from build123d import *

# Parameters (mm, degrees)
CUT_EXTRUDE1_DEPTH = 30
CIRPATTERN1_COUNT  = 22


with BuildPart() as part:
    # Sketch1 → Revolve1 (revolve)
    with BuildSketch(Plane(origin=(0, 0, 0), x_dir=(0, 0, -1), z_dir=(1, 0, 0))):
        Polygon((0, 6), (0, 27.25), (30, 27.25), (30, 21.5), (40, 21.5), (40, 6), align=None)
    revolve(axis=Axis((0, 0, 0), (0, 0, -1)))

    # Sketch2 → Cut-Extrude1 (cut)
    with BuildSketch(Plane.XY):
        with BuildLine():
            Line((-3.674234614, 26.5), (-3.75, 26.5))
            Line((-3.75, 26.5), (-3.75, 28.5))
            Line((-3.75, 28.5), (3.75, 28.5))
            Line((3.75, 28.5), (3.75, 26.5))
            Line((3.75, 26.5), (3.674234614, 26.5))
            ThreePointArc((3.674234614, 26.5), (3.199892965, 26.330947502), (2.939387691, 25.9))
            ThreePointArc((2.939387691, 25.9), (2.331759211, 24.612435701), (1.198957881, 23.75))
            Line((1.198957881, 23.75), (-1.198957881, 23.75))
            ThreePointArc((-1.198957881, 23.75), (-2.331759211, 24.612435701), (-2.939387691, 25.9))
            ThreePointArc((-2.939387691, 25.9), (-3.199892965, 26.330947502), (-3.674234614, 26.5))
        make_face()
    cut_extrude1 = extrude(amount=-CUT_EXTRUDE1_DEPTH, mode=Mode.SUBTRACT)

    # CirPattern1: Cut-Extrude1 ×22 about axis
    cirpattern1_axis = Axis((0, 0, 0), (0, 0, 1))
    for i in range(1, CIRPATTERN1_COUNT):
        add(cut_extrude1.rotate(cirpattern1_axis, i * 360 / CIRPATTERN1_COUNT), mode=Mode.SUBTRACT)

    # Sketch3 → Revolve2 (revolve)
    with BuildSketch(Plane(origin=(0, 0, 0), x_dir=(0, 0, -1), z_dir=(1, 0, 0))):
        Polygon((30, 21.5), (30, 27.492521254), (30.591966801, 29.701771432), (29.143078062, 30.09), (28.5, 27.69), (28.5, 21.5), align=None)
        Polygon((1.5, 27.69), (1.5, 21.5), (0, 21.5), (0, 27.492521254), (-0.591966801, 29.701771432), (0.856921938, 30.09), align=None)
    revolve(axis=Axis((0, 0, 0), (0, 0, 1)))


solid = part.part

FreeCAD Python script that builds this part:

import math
import FreeCAD as App
import Part
import Sketcher

V = App.Vector
Q = App.Units.Quantity

doc = App.newDocument("Part")
body = doc.addObject("PartDesign::Body", "Body")

# Sketch on YZ plane
sketch1 = doc.addObject("Sketcher::SketchObject", "Sketch")
body.addObject(sketch1)
sketch1.AttachmentSupport = (doc.YZ_Plane, [""])
sketch1.MapMode = "FlatFace"
sketch1.addGeometry([
    Part.LineSegment(V(27, 0, 0), V(6, 0, 0)),  # 0
    Part.LineSegment(V(6, 0, 0), V(6, -40, 0)),  # 1
    Part.LineSegment(V(6, -40, 0), V(22, -40, 0)),  # 2
    Part.LineSegment(V(22, -40, 0), V(22, -30, 0)),  # 3
    Part.LineSegment(V(22, -30, 0), V(27, -30, 0)),  # 4
    Part.LineSegment(V(27, -30, 0), V(27, 0, 0)),  # 5
], False)
sketch1.addConstraint([
    Sketcher.Constraint("Coincident", 0, 2, 1, 1),
    Sketcher.Constraint("Coincident", 1, 2, 2, 1),
    Sketcher.Constraint("Coincident", 2, 2, 3, 1),
    Sketcher.Constraint("Coincident", 3, 2, 4, 1),
    Sketcher.Constraint("Coincident", 4, 2, 5, 1),
    Sketcher.Constraint("Coincident", 5, 2, 0, 1),
    Sketcher.Constraint("Horizontal", 0),
    Sketcher.Constraint("Vertical", 1),
    Sketcher.Constraint("Horizontal", 2),
    Sketcher.Constraint("Vertical", 3),
    Sketcher.Constraint("Horizontal", 4),
    Sketcher.Constraint("Vertical", 5),
    Sketcher.Constraint("PointOnObject", 0, 2, -1),
    Sketcher.Constraint("DistanceY", 1, 2, 1, 1, 40.0),
    Sketcher.Constraint("DistanceY", 3, 1, 3, 2, 10.0),
    Sketcher.Constraint("DistanceX", 2, 1, 2, 2, 15.5),
    Sketcher.Constraint("DistanceX", -1, 1, 0, 2, 6.0),
    Sketcher.Constraint("DistanceX", 0, 2, 0, 1, 21.25),
])
revolution = doc.addObject("PartDesign::Revolution", "Revolution")
body.addObject(revolution)
revolution.Profile = sketch1
revolution.ReferenceAxis = (sketch1, ["V_Axis"])
revolution.Angle = 360

# Sketch on XY plane
sketch2 = doc.addObject("Sketcher::SketchObject", "Sketch001")
body.addObject(sketch2)
sketch2.AttachmentSupport = (doc.XY_Plane, [""])
sketch2.MapMode = "FlatFace"
sketch2.addGeometry([
    Part.LineSegment(V(-3.75, 26.5, 0), V(-3.67, 26.5, 0)),  # 0
    Part.ArcOfCircle(Part.Circle(V(-3.67, 25.75, 0), V(0, 0, 1), 0.75), math.radians(12), math.radians(90)),  # 1
    Part.ArcOfCircle(Part.Circle(V(0, 26.5, 0), V(0, 0, 1), 3), math.radians(-168), math.radians(-114)),  # 2
    Part.LineSegment(V(-1.2, 23.75, 0), V(1.2, 23.75, 0)),  # 3
    Part.ArcOfCircle(Part.Circle(V(0, 26.5, 0), V(0, 0, 1), 3), math.radians(-66), math.radians(-12)),  # 4
    Part.ArcOfCircle(Part.Circle(V(3.67, 25.75, 0), V(0, 0, 1), 0.75), math.radians(90), math.radians(168)),  # 5
    Part.LineSegment(V(3.67, 26.5, 0), V(3.75, 26.5, 0)),  # 6
    Part.LineSegment(V(3.75, 26.5, 0), V(3.75, 28.5, 0)),  # 7
    Part.LineSegment(V(3.75, 28.5, 0), V(-3.75, 28.5, 0)),  # 8
    Part.LineSegment(V(-3.75, 28.5, 0), V(-3.75, 26.5, 0)),  # 9
], False)
sketch2.addConstraint([
    Sketcher.Constraint("Tangent", 0, 2, 1, 2),
    Sketcher.Constraint("Tangent", 1, 1, 2, 1),
    Sketcher.Constraint("Coincident", 2, 2, 3, 1),
    Sketcher.Constraint("Coincident", 3, 2, 4, 1),
    Sketcher.Constraint("Tangent", 4, 2, 5, 2),
    Sketcher.Constraint("Tangent", 5, 1, 6, 1),
    Sketcher.Constraint("Coincident", 6, 2, 7, 1),
    Sketcher.Constraint("Coincident", 7, 2, 8, 1),
    Sketcher.Constraint("Coincident", 8, 2, 9, 1),
    Sketcher.Constraint("Coincident", 9, 2, 0, 1),
    Sketcher.Constraint("Horizontal", 0),
    Sketcher.Constraint("Horizontal", 3),
    Sketcher.Constraint("Horizontal", 6),
    Sketcher.Constraint("Vertical", 7),
    Sketcher.Constraint("Horizontal", 8),
    Sketcher.Constraint("Vertical", 9),
    Sketcher.Constraint("Coincident", 4, 3, 2, 3),
    Sketcher.Constraint("Equal", 2, 4),
    Sketcher.Constraint("Equal", 1, 5),
    Sketcher.Constraint("Symmetric", 1, 3, 5, 3, -2),
    Sketcher.Constraint("Horizontal", 4, 3, 0, 2),
    Sketcher.Constraint("Equal", 0, 6),
    Sketcher.Constraint("Radius", 2, 3.0),
    Sketcher.Constraint("DistanceY", 7, 1, 7, 2, 2.0),
    Sketcher.Constraint("Radius", 1, 0.75),
    Sketcher.Constraint("DistanceX", 8, 2, 8, 1, 7.5),
    Sketcher.Constraint("DistanceY", 2, 2, 1, 3, 2.0),
    Sketcher.Constraint("DistanceY", -1, 1, 2, 3, 26.5),
])
pocket1 = doc.addObject("PartDesign::Pocket", "Pocket")
body.addObject(pocket1)
pocket1.Profile = sketch2
pocket1.Length = 30
doc.recompute()

polarpattern = doc.addObject("PartDesign::PolarPattern", "PolarPattern")
body.addObject(polarpattern)
polarpattern.Originals = [pocket1]
polarpattern.Axis = (doc.Z_Axis, [""])
polarpattern.Angle = 360
polarpattern.Occurrences = 22
body.Tip = polarpattern

# Sketch on YZ plane
sketch3 = doc.addObject("Sketcher::SketchObject", "Sketch002")
body.addObject(sketch3)
sketch3.AttachmentSupport = (doc.YZ_Plane, [""])
sketch3.MapMode = "FlatFace"
sketch3.addGeometry([
    Part.LineSegment(V(21.5, -30, 0), V(27.5, -30, 0)),  # 0
    Part.LineSegment(V(27.5, -30, 0), V(29.7, -30.6, 0)),  # 1
    Part.LineSegment(V(29.7, -30.6, 0), V(30.1, -29.1, 0)),  # 2
    Part.LineSegment(V(30.1, -29.1, 0), V(27.7, -28.5, 0)),  # 3
    Part.LineSegment(V(27.7, -28.5, 0), V(21.5, -28.5, 0)),  # 4
    Part.LineSegment(V(21.5, -28.5, 0), V(21.5, -30, 0)),  # 5
    Part.LineSegment(V(21.5, -1.5, 0), V(27.7, -1.5, 0)),  # 6
    Part.LineSegment(V(27.7, -1.5, 0), V(30.1, -0.9, 0)),  # 7
    Part.LineSegment(V(30.1, -0.9, 0), V(29.7, 0.6, 0)),  # 8
    Part.LineSegment(V(29.7, 0.6, 0), V(27.5, 0, 0)),  # 9
    Part.LineSegment(V(27.5, 0, 0), V(21.5, 0, 0)),  # 10
    Part.LineSegment(V(21.5, 0, 0), V(21.5, -1.5, 0)),  # 11
], False)
sketch3.addConstraint([
    Sketcher.Constraint("Coincident", 0, 2, 1, 1),
    Sketcher.Constraint("Coincident", 1, 2, 2, 1),
    Sketcher.Constraint("Coincident", 2, 2, 3, 1),
    Sketcher.Constraint("Coincident", 3, 2, 4, 1),
    Sketcher.Constraint("Coincident", 4, 2, 5, 1),
    Sketcher.Constraint("Coincident", 5, 2, 0, 1),
    Sketcher.Constraint("Coincident", 6, 2, 7, 1),
    Sketcher.Constraint("Coincident", 7, 2, 8, 1),
    Sketcher.Constraint("Coincident", 8, 2, 9, 1),
    Sketcher.Constraint("Coincident", 9, 2, 10, 1),
    Sketcher.Constraint("Coincident", 10, 2, 11, 1),
    Sketcher.Constraint("Coincident", 11, 2, 6, 1),
    Sketcher.Constraint("Horizontal", 0),
    Sketcher.Constraint("Horizontal", 4),
    Sketcher.Constraint("Vertical", 5),
    Sketcher.Constraint("Horizontal", 6),
    Sketcher.Constraint("Horizontal", 10),
    Sketcher.Constraint("Vertical", 11),
    Sketcher.Constraint("PointOnObject", 9, 2, -1),
    Sketcher.Constraint("Perpendicular", 1, 2),
    Sketcher.Constraint("Perpendicular", 2, 3),
    Sketcher.Constraint("Perpendicular", 7, 8),
    Sketcher.Constraint("Perpendicular", 8, 9),
    Sketcher.Constraint("Vertical", 3, 2, 6, 2),
    Sketcher.Constraint("Vertical", 2, 2, 7, 2),
    Sketcher.Constraint("Vertical", 1, 2, 8, 2),
    Sketcher.Constraint("Vertical", 0, 2, 9, 2),
    Sketcher.Constraint("Vertical", 5, 2, 10, 2),
    Sketcher.Constraint("Equal", 5, 11),
    Sketcher.Constraint("Angle", 1, Q("-15 deg")),
    Sketcher.Constraint("DistanceY", 5, 2, 5, 1, 1.5),
    Sketcher.Constraint("DistanceY", 0, 2, -1, 1, 30.0),
    Sketcher.Constraint("Distance", 2, 1.5),
    Sketcher.Constraint("DistanceX", 4, 2, 4, 1, 6.19),
    Sketcher.Constraint("DistanceX", -1, 1, 4, 2, 21.5),
    Sketcher.Constraint("DistanceX", 3, 2, 2, 2, 2.4),
])
revolution2 = doc.addObject("PartDesign::Revolution", "Revolution001")
body.addObject(revolution2)
revolution2.Profile = sketch3
revolution2.ReferenceAxis = (sketch3, ["V_Axis"])
revolution2.Angle = 360

doc.recompute()
